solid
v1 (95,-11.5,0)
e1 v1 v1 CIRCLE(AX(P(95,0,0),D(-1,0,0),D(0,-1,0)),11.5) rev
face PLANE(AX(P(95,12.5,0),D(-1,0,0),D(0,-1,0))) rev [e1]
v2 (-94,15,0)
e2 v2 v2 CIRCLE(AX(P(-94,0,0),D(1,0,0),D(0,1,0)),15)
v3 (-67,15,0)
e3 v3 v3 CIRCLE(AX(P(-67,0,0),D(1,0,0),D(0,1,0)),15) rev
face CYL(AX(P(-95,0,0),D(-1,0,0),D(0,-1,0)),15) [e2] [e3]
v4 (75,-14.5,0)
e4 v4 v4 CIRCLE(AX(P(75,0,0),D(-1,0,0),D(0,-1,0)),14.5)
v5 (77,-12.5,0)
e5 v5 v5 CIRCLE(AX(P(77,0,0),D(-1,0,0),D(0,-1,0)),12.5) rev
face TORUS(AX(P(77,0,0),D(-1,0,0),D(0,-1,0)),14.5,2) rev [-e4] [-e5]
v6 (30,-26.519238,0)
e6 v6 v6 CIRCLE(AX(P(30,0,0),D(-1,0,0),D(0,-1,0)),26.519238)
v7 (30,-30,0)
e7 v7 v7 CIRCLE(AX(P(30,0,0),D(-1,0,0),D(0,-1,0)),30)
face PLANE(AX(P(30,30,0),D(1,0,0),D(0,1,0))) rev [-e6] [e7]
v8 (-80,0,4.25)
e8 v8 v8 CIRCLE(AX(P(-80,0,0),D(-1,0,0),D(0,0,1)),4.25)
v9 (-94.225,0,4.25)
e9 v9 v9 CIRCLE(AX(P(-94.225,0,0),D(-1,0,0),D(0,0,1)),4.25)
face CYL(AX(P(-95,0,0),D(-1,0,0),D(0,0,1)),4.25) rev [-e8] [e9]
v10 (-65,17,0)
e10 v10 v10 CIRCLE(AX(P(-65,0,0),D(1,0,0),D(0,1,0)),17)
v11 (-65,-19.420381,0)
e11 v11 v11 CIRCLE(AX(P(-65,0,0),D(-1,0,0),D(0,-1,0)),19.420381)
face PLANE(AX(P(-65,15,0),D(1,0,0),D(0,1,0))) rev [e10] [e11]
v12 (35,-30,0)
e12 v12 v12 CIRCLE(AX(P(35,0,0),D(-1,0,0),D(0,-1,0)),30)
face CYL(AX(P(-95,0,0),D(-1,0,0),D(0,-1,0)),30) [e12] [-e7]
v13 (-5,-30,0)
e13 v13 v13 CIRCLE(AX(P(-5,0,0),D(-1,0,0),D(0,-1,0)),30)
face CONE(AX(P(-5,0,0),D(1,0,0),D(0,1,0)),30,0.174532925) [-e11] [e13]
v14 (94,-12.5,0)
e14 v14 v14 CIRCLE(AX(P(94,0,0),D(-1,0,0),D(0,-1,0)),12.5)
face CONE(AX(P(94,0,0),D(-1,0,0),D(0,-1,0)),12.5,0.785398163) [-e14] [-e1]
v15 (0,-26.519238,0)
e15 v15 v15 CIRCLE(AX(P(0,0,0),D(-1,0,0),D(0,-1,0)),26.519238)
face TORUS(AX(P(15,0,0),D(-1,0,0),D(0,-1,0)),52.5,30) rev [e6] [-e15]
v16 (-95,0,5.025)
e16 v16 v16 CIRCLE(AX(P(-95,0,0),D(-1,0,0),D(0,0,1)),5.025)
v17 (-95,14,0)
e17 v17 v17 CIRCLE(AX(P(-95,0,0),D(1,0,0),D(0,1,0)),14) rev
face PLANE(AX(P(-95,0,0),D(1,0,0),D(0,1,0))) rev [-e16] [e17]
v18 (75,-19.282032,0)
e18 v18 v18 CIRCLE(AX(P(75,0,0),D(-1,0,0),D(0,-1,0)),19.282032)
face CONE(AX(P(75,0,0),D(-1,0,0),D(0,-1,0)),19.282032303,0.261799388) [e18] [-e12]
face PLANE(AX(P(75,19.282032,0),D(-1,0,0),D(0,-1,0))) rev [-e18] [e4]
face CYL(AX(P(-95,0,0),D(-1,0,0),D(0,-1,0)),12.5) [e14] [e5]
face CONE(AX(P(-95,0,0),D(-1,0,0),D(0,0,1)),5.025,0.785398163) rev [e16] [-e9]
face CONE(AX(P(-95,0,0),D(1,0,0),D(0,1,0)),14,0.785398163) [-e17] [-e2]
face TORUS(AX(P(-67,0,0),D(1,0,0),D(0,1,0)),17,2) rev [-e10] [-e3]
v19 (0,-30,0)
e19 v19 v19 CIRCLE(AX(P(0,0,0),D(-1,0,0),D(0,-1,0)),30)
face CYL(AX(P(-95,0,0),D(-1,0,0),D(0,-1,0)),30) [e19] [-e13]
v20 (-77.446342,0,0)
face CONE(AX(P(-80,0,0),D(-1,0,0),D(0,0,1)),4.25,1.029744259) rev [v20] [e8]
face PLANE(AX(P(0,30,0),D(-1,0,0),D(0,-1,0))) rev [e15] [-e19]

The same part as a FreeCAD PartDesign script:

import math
import FreeCAD as App
import Part
import Sketcher
from FreeCAD import Vector
Q = App.Units.Quantity


def edges_at(feature, points):
    """Names of the edges that pass closest to the given points."""
    edges = feature.Shape.Edges
    near = lambda p: min(range(len(edges)), key=lambda i: edges[i].distToShape(Part.Vertex(*p))[0])
    return sorted({f"Edge{near(p) + 1}" for p in points})

doc = App.newDocument("Part")
params = doc.addObject("Spreadsheet::Sheet", "Params")
for row, (alias, value) in enumerate([
    ("sketch1_radius", "30 mm"),
    ("sketch1_width", "190 mm"),
    ("sketch1_width2", "20 mm"),
    ("sketch1_width3", "5 mm"),
    ("sketch1_width4", "30 mm"),
    ("revolution_angle", "360 deg"),
    ("chamfer_size", "1 mm"),
    ("fillet_radius", "2 mm"),
    ("sketch2_diameter", "8.5 mm"),
    ("hole_diameter", "8.5 mm"),
    ("hole_depth", "15 mm"),
    ("hole_csink_diameter", "10.05 mm"),
], start=1):
    params.set(f"A{row}", alias)
    params.set(f"B{row}", "=" + value)
    params.setAlias(f"B{row}", alias)

body = doc.addObject("PartDesign::Body", "Body")

# Sketch on XY plane
sketch1 = body.newObject("Sketcher::SketchObject", "Sketch")
sketch1.AttachmentSupport = (doc.getObject("XY_Plane"), [""])
sketch1.MapMode = "FlatFace"
sketch1.addGeometry([
    Part.LineSegment(Vector(-95, 15, 0), Vector(-95, 0, 0)),  # 0
    Part.LineSegment(Vector(-95, 0, 0), Vector(95, 0, 0)),  # 1
    Part.LineSegment(Vector(95, 0, 0), Vector(95, 12.5, 0)),  # 2
    Part.LineSegment(Vector(95, 12.5, 0), Vector(75, 12.5, 0)),  # 3
    Part.LineSegment(Vector(75, 12.5, 0), Vector(75, 19.3, 0)),  # 4
    Part.LineSegment(Vector(75, 19.3, 0), Vector(35, 30, 0)),  # 5
    Part.LineSegment(Vector(35, 30, 0), Vector(30, 30, 0)),  # 6
    Part.LineSegment(Vector(30, 30, 0), Vector(30, 26.5, 0)),  # 7
    Part.ArcOfCircle(Part.Circle(Vector(15, 52.5, 0), Vector(0, 0, 1), 30), math.radians(-120), math.radians(-60)),  # 8
    Part.LineSegment(Vector(0, 26.5, 0), Vector(0, 30, 0)),  # 9
    Part.LineSegment(Vector(0, 30, 0), Vector(-5, 30, 0)),  # 10
    Part.LineSegment(Vector(-5, 30, 0), Vector(-65, 19.4, 0)),  # 11
    Part.LineSegment(Vector(-65, 19.4, 0), Vector(-65, 15, 0)),  # 12
    Part.LineSegment(Vector(-65, 15, 0), Vector(-95, 15, 0)),  # 13
], False)
sketch1.addConstraint([
    Sketcher.Constraint("Coincident", 0, 2, 1, 1),
    Sketcher.Constraint("Coincident", 1, 2, 2, 1),
    Sketcher.Constraint("Coincident", 2, 2, 3, 1),
    Sketcher.Constraint("Coincident", 3, 2, 4, 1),
    Sketcher.Constraint("Coincident", 4, 2, 5, 1),
    Sketcher.Constraint("Coincident", 5, 2, 6, 1),
    Sketcher.Constraint("Coincident", 6, 2, 7, 1),
    Sketcher.Constraint("Coincident", 7, 2, 8, 2),
    Sketcher.Constraint("Coincident", 8, 1, 9, 1),
    Sketcher.Constraint("Coincident", 9, 2, 10, 1),
    Sketcher.Constraint("Coincident", 10, 2, 11, 1),
    Sketcher.Constraint("Coincident", 11, 2, 12, 1),
    Sketcher.Constraint("Coincident", 12, 2, 13, 1),
    Sketcher.Constraint("Coincident", 13, 2, 0, 1),
    Sketcher.Constraint("Vertical", 0),
    Sketcher.Constraint("Horizontal", 1),
    Sketcher.Constraint("Vertical", 2),
    Sketcher.Constraint("Horizontal", 3),
    Sketcher.Constraint("Vertical", 4),
    Sketcher.Constraint("Horizontal", 6),
    Sketcher.Constraint("Vertical", 7),
    Sketcher.Constraint("Vertical", 9),
    Sketcher.Constraint("Horizontal", 10),
    Sketcher.Constraint("Vertical", 12),
    Sketcher.Constraint("Horizontal", 13),
    Sketcher.Constraint("Symmetric", 0, 2, 1, 2, -1, 1),
    Sketcher.Constraint("PointOnObject", 8, 1, -2),
    Sketcher.Constraint("Horizontal", 7, 2, 8, 1),
    Sketcher.Constraint("Horizontal", 6, 2, 9, 2),
    Sketcher.Constraint("Equal", 6, 10),
    Sketcher.Constraint("Radius", 8, Q("30 mm")),
    Sketcher.Constraint("DistanceX", 1, 1, 1, 2, Q("190 mm")),
    Sketcher.Constraint("DistanceX", 3, 2, 3, 1, Q("20 mm")),
    Sketcher.Constraint("DistanceX", 6, 2, 6, 1, Q("5 mm")),
    Sketcher.Constraint("DistanceX", 13, 2, 13, 1, Q("30 mm")),
    Sketcher.Constraint("DistanceY", 0, 2, 0, 1, Q("15 mm")),
    Sketcher.Constraint("Angle", 5, Q("165 deg")),
    Sketcher.Constraint("Angle", 11, Q("-170 deg")),
    Sketcher.Constraint("DistanceY", 2, 1, 2, 2, Q("12.5 mm")),
    Sketcher.Constraint("DistanceX", -1, 1, 8, 3, Q("15 mm")),
    Sketcher.Constraint("DistanceY", -1, 1, 5, 2, Q("30 mm")),
    Sketcher.Constraint("DistanceY", 2, 2, 8, 3, Q("40 mm")),
])
sketch1.setExpression("Constraints[30]", "Params.sketch1_radius")
sketch1.setExpression("Constraints[31]", "Params.sketch1_width")
sketch1.setExpression("Constraints[32]", "Params.sketch1_width2")
sketch1.setExpression("Constraints[33]", "Params.sketch1_width3")
sketch1.setExpression("Constraints[34]", "Params.sketch1_width4")
revolution = body.newObject("PartDesign::Revolution", "Revolution")
revolution.Profile = sketch1
revolution.ReferenceAxis = (sketch1, ["H_Axis"])
revolution.setExpression("Angle", "Params.revolution_angle")
doc.recompute()

chamfer = body.newObject("PartDesign::Chamfer", "Chamfer")
chamfer.Base = (revolution, edges_at(revolution, [(-95, -15, 0), (95, -12.5, 0)]))
chamfer.setExpression("Size", "Params.chamfer_size")
doc.recompute()

fillet = body.newObject("PartDesign::Fillet", "Fillet")
fillet.Base = (chamfer, edges_at(chamfer, [(-65, -15, 0), (75, -12.5, 0)]))
fillet.setExpression("Radius", "Params.fillet_radius")

# Sketch on YZ plane
sketch2 = body.newObject("Sketcher::SketchObject", "Sketch001")
sketch2.AttachmentSupport = (doc.getObject("YZ_Plane"), [""])
sketch2.MapMode = "FlatFace"
sketch2.AttachmentOffset = App.Placement(Vector(0, 0, -95), App.Rotation())
sketch2.addGeometry(Part.Circle(Vector(0, 0, 0), Vector(0, 0, 1), 4.2), False)
sketch2.addConstraint([
    Sketcher.Constraint("Coincident", 0, 3, -1, 1),
    Sketcher.Constraint("Diameter", 0, Q("8.5 mm")),
])
sketch2.setExpression("Constraints[1]", "Params.sketch2_diameter")
doc.recompute()
hole = body.newObject("PartDesign::Hole", "Hole")
hole.Profile = sketch2
hole.ThreadType = "None"
hole.setExpression("Diameter", "Params.hole_diameter")
hole.DepthType = "Dimension"
hole.setExpression("Depth", "Params.hole_depth")
hole.DrillPoint = "Angled"
hole.DrillPointAngle = 118
hole.HoleCutType = "Countersink"
hole.setExpression("HoleCutDiameter", "Params.hole_csink_diameter")
hole.HoleCutCountersinkAngle = 90
hole.Reversed = True

doc.recompute()
